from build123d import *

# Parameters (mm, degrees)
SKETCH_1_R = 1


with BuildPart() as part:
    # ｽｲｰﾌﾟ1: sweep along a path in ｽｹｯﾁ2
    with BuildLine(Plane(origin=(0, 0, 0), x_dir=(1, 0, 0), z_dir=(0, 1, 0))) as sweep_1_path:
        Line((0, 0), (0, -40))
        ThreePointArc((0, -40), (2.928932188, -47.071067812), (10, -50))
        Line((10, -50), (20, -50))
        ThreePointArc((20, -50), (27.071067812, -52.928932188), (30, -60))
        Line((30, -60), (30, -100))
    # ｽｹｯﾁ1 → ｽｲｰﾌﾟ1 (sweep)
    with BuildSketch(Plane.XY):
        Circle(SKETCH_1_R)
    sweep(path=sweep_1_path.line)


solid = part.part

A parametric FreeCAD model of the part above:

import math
import FreeCAD as App
import Part
import Sketcher
from FreeCAD import Vector
Q = App.Units.Quantity

doc = App.newDocument("Part")
body = doc.addObject("PartDesign::Body", "Body")

# Sketch on XY plane
sketch1 = body.newObject("Sketcher::SketchObject", "Sketch")
sketch1.AttachmentSupport = (doc.getObject("XY_Plane"), [""])
sketch1.MapMode = "FlatFace"
sketch1.addGeometry(Part.Circle(Vector(0, 0, 0), Vector(0, 0, 1), 1), False)
sketch1.addConstraint([
    Sketcher.Constraint("Coincident", 0, 3, -1, 1),
    Sketcher.Constraint("Diameter", 0, Q("2 mm")),
])

# Sketch on XZ plane
sketch2 = body.newObject("Sketcher::SketchObject", "Sketch001")
sketch2.AttachmentSupport = (doc.getObject("XZ_Plane"), [""])
sketch2.MapMode = "FlatFace"
sketch2.addGeometry([
    Part.LineSegment(Vector(0, 0, 0), Vector(0, 40, 0)),  # 0
    Part.ArcOfCircle(Part.Circle(Vector(10, 40, 0), Vector(0, 0, 1), 10), math.radians(90), math.radians(180)),  # 1
    Part.LineSegment(Vector(10, 50, 0), Vector(20, 50, 0)),  # 2
    Part.ArcOfCircle(Part.Circle(Vector(20, 60, 0), Vector(0, 0, 1), 10), math.radians(-90), math.radians(0)),  # 3
    Part.LineSegment(Vector(30, 60, 0), Vector(30, 100, 0)),  # 4
], False)
sketch2.addConstraint([
    Sketcher.Constraint("Tangent", 0, 2, 1, 2),
    Sketcher.Constraint("Tangent", 1, 1, 2, 1),
    Sketcher.Constraint("Tangent", 2, 2, 3, 1),
    Sketcher.Constraint("Tangent", 3, 2, 4, 1),
    Sketcher.Constraint("Vertical", 0),
    Sketcher.Constraint("Horizontal", 2),
    Sketcher.Constraint("Vertical", 4),
    Sketcher.Constraint("Coincident", 0, 1, -1, 1),
    Sketcher.Constraint("Equal", 1, 3),
    Sketcher.Constraint("Equal", 0, 4),
    Sketcher.Constraint("Radius", 1, Q("10 mm")),
    Sketcher.Constraint("DistanceX", 2, 1, 2, 2, Q("10 mm")),
    Sketcher.Constraint("DistanceY", 0, 1, 0, 2, Q("40 mm")),
])
doc.recompute()

additivepipe = body.newObject("PartDesign::AdditivePipe", "AdditivePipe")
additivepipe.Profile = sketch1
additivepipe.Spine = (sketch2, ["Edge1", "Edge2", "Edge3", "Edge4", "Edge5"])

doc.recompute()
